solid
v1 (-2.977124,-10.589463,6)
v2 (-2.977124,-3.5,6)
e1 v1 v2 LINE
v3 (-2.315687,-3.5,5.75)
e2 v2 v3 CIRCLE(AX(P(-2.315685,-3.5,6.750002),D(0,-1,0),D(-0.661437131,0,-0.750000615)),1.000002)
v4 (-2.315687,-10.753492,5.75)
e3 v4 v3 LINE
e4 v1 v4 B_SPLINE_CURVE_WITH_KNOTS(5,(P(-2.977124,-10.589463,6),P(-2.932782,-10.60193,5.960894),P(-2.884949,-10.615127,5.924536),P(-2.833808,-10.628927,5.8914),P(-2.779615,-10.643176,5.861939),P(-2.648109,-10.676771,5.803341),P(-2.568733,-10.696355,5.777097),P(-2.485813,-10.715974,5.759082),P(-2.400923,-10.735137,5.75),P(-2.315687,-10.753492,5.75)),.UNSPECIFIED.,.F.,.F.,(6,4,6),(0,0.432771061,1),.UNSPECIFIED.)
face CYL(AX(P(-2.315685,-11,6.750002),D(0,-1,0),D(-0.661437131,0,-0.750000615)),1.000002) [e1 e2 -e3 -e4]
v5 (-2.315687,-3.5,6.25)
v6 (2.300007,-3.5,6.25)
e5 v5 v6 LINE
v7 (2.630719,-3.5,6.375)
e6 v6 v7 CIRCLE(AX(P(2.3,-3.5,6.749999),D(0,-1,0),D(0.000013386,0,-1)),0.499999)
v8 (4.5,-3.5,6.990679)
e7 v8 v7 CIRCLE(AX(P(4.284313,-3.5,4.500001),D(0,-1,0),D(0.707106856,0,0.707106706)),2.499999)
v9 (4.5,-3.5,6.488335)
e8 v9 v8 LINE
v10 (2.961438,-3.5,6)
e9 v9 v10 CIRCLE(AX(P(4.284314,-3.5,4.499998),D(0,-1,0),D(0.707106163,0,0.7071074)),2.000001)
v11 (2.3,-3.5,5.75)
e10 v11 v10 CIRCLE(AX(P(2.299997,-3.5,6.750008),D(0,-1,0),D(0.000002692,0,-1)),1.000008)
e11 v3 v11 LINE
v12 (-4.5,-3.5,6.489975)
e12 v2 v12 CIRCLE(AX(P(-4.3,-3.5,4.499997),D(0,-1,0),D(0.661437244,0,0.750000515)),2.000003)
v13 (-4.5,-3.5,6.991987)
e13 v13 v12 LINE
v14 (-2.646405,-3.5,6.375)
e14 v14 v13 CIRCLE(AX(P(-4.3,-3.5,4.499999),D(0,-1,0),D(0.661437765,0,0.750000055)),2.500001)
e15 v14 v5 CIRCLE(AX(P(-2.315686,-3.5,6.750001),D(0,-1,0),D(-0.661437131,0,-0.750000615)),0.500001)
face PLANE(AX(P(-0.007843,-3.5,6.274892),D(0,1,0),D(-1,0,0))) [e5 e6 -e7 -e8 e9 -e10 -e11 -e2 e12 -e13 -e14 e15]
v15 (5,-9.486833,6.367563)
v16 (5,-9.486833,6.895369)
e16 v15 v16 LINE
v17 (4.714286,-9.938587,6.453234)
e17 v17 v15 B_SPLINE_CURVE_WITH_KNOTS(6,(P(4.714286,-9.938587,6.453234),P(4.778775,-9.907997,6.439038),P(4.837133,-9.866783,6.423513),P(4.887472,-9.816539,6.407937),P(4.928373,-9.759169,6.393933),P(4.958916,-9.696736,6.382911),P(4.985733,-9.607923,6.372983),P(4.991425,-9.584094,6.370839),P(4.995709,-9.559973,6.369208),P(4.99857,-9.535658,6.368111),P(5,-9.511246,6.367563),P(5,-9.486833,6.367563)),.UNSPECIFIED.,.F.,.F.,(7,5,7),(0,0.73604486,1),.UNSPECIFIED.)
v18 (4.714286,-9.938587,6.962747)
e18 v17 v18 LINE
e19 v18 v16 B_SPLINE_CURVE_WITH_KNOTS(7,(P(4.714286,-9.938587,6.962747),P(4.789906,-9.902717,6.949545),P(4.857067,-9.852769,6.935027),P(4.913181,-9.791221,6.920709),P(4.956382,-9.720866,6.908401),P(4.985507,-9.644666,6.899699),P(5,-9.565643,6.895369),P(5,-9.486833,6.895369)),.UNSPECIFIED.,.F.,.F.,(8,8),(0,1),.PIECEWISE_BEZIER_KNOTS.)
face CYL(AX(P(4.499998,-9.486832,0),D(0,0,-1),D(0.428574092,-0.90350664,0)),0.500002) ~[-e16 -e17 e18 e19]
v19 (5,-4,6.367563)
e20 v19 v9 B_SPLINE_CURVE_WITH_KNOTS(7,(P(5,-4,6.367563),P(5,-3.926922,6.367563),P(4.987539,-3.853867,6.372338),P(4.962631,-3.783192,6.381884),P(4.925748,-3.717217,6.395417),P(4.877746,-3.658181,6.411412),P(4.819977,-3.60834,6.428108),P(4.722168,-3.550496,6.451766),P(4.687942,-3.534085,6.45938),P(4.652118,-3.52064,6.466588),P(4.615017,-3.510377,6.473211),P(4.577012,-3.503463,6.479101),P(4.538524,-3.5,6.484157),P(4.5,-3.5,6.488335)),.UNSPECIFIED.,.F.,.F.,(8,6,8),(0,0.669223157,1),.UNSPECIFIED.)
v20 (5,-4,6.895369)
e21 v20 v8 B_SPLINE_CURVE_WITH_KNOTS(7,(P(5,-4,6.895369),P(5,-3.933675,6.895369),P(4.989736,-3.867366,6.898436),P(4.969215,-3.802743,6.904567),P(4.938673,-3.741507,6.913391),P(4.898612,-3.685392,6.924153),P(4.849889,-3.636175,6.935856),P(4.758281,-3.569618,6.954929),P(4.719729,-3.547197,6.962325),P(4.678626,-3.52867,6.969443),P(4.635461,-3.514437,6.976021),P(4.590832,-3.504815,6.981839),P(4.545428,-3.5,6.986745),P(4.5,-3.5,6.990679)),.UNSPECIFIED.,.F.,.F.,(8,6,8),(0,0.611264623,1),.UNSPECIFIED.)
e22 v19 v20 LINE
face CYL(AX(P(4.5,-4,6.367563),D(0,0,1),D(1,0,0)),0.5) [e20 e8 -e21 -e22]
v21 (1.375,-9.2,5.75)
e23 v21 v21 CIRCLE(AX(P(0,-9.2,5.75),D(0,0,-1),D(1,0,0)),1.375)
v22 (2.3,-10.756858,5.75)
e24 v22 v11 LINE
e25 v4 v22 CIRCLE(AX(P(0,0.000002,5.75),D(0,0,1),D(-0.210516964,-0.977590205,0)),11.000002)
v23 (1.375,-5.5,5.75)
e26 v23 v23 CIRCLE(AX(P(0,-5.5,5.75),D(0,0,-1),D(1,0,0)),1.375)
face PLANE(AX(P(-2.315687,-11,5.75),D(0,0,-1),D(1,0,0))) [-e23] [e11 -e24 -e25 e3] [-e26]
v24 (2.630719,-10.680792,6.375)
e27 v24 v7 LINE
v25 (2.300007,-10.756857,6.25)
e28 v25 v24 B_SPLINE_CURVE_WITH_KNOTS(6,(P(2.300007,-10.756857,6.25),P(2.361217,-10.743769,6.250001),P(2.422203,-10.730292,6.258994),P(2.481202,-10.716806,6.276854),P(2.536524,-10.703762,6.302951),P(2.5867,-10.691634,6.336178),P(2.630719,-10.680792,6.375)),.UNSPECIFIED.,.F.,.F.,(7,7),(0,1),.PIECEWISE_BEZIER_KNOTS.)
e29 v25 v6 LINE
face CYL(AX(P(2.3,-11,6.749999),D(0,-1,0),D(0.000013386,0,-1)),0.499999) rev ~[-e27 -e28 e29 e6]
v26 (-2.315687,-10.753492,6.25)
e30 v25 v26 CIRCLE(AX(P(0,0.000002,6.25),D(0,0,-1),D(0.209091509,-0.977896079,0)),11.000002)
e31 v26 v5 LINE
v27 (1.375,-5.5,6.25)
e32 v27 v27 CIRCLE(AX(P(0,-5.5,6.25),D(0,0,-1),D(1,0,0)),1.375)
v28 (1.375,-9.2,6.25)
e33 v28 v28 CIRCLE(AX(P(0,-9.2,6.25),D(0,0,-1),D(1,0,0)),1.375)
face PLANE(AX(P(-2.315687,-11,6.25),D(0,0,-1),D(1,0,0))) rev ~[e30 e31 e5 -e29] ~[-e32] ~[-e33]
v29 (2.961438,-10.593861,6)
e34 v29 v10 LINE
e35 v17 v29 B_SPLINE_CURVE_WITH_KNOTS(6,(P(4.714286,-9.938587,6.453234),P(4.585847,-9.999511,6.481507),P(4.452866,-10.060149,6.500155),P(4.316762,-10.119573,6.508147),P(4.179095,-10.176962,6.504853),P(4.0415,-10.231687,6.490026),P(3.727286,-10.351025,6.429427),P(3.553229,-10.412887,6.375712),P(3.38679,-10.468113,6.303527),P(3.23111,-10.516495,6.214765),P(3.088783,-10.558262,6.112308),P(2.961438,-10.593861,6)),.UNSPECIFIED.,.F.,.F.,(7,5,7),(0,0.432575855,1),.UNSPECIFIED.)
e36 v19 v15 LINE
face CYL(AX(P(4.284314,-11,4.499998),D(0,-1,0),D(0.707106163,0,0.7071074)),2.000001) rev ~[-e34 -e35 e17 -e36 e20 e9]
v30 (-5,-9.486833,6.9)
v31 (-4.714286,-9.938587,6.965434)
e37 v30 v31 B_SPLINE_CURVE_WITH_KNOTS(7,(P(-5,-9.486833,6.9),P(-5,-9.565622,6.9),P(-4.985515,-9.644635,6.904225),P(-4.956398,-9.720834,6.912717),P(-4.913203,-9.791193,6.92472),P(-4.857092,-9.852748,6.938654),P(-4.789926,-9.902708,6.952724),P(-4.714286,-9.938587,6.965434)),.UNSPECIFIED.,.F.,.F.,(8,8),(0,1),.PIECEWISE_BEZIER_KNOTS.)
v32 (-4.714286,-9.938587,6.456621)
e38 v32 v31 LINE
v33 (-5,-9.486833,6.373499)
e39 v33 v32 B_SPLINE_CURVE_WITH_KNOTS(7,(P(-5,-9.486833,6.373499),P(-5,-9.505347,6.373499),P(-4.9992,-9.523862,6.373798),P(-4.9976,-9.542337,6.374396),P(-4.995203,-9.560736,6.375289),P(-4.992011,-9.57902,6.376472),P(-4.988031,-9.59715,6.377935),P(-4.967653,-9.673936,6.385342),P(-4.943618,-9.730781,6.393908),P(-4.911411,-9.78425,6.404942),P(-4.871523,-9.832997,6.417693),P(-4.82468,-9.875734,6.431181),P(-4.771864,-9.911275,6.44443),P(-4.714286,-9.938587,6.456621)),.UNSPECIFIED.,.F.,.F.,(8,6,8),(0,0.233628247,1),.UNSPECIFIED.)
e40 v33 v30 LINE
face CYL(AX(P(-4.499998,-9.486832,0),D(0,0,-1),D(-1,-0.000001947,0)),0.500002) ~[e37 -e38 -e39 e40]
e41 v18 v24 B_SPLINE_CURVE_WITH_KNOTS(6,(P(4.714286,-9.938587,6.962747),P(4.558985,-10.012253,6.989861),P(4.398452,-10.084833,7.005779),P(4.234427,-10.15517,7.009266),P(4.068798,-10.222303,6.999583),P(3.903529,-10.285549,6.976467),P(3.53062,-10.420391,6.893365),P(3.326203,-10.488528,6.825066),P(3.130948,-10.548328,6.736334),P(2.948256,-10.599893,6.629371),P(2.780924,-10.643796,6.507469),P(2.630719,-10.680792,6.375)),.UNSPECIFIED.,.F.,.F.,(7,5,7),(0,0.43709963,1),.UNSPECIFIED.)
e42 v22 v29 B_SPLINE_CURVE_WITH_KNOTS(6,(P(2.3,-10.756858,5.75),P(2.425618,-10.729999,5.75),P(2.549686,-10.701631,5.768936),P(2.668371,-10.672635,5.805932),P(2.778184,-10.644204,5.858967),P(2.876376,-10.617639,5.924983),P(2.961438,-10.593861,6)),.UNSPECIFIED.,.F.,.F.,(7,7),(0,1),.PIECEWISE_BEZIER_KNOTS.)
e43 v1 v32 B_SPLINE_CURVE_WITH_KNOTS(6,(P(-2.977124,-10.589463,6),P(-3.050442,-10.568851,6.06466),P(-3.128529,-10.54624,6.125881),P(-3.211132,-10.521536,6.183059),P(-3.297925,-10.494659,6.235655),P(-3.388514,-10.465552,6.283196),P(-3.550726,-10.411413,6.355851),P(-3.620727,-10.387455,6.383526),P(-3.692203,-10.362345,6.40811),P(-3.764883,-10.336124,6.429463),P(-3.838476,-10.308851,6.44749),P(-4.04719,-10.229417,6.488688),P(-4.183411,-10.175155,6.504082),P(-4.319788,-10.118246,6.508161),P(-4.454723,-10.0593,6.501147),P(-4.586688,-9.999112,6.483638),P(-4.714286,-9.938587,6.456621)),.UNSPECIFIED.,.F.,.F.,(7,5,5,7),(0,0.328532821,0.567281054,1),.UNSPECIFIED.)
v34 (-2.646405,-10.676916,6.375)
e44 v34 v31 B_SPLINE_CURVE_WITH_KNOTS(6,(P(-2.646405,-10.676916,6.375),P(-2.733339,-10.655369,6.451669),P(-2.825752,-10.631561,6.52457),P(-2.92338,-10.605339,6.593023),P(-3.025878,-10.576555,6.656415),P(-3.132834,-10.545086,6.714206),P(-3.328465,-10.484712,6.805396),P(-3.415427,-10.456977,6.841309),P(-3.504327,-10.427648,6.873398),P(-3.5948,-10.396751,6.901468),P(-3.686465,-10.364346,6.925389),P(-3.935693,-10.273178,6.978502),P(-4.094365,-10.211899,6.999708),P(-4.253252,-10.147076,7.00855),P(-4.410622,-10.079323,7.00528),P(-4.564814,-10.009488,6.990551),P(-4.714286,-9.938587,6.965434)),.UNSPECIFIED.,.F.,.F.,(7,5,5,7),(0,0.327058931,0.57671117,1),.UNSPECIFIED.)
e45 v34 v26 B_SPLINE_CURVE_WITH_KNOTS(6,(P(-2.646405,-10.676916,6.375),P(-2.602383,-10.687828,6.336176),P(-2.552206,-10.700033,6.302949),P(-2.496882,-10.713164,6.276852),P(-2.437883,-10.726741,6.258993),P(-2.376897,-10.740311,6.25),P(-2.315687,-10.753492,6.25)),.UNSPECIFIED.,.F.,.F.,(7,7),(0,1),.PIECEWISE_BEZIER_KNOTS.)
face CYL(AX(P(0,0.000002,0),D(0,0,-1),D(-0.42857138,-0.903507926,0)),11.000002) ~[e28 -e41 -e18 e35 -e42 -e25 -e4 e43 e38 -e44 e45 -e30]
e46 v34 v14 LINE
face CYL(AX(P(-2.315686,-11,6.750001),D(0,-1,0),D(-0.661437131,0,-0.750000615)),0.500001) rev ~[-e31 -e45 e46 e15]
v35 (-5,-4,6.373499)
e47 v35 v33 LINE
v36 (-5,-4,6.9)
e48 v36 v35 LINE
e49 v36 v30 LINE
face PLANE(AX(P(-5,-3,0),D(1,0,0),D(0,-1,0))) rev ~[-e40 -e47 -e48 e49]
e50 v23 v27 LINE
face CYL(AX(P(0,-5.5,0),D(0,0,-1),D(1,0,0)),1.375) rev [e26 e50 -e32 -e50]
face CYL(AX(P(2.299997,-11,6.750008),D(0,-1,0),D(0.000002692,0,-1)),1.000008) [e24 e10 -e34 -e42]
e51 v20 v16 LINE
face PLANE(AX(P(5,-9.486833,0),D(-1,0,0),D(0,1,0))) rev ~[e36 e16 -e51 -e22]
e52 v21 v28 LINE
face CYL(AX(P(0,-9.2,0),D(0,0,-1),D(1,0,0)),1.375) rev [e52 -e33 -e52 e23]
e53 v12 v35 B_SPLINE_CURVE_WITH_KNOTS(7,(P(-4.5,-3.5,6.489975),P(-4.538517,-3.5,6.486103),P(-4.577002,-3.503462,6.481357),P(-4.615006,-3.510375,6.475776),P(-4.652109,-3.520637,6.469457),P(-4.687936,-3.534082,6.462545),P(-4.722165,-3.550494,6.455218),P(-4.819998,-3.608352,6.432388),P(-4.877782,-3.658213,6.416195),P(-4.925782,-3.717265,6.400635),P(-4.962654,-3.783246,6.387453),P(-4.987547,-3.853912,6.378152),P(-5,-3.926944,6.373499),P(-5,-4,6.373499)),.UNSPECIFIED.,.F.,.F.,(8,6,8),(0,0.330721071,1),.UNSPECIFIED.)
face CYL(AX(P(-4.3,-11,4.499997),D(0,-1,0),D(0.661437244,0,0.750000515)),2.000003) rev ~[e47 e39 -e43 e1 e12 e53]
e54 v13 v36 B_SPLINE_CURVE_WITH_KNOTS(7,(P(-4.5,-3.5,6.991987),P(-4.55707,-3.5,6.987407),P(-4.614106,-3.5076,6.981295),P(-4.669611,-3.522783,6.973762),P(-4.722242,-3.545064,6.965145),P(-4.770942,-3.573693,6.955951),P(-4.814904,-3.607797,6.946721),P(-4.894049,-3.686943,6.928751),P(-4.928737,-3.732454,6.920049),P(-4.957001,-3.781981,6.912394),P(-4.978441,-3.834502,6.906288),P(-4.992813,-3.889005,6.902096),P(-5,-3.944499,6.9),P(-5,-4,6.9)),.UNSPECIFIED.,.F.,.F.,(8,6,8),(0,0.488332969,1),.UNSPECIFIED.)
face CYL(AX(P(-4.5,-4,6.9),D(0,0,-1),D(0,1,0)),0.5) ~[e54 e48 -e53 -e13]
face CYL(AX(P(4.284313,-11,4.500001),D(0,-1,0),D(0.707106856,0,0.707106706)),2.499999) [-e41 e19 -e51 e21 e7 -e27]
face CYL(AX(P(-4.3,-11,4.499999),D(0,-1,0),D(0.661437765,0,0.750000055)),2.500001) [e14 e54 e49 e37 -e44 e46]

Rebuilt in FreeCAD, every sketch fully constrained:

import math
import FreeCAD as App
import Part
import Sketcher

V = App.Vector


def edges_at(feature, points):
    """Names of the edges that pass closest to the given points."""
    edges = feature.Shape.Edges
    near = lambda p: min(range(len(edges)), key=lambda i: edges[i].distToShape(Part.Vertex(*p))[0])
    return sorted({f"Edge{near(p) + 1}" for p in points})

doc = App.newDocument("Part")
body = doc.addObject("PartDesign::Body", "Body")

sketch1 = doc.addObject("Sketcher::SketchObject", "Sketch")
body.addObject(sketch1)
sketch1.AttachmentSupport = (doc.XZ_Plane, [""])
sketch1.MapMode = "FlatFace"
sketch1.AttachmentOffset = App.Placement(V(0, 0, 11), App.Rotation())
sketch1.addGeometry([
    Part.ArcOfCircle(Part.Circle(V(-4.3, 4.5, 0), V(0, 0, 1), 2), math.radians(49), math.radians(135)),
    Part.ArcOfCircle(Part.Circle(V(-2.32, 6.75, 0), V(0, 0, 1), 1), math.radians(-131), math.radians(-90)),
    Part.LineSegment(V(-2.32, 5.75, 0), V(2.3, 5.75, 0)),
    Part.ArcOfCircle(Part.Circle(V(2.3, 6.75, 0), V(0, 0, 1), 1), math.radians(-90), math.radians(-49)),
    Part.ArcOfCircle(Part.Circle(V(4.28, 4.5, 0), V(0, 0, 1), 2), math.radians(45), math.radians(131)),
    Part.LineSegment(V(5.7, 5.91, 0), V(6.05, 6.27, 0)),
    Part.ArcOfCircle(Part.Circle(V(4.28, 4.5, 0), V(0, 0, 1), 2.5), math.radians(45), math.radians(131)),
    Part.ArcOfCircle(Part.Circle(V(2.3, 6.75, 0), V(0, 0, 1), 0.5), math.radians(-90), math.radians(-49)),
    Part.LineSegment(V(2.3, 6.25, 0), V(-2.32, 6.25, 0)),
    Part.ArcOfCircle(Part.Circle(V(-2.32, 6.75, 0), V(0, 0, 1), 0.5), math.radians(-131), math.radians(-90)),
    Part.ArcOfCircle(Part.Circle(V(-4.3, 4.5, 0), V(0, 0, 1), 2.5), math.radians(49), math.radians(135)),
    Part.LineSegment(V(-6.07, 6.27, 0), V(-5.71, 5.91, 0)),
], False)
sketch1.addConstraint([
    Sketcher.Constraint("Tangent", 0, 1, 1, 1),
    Sketcher.Constraint("Tangent", 1, 2, 2, 1),
    Sketcher.Constraint("Coincident", 2, 2, 3, 1),
    Sketcher.Constraint("Coincident", 3, 2, 4, 2),
    Sketcher.Constraint("Coincident", 4, 1, 5, 1),
    Sketcher.Constraint("Coincident", 5, 2, 6, 1),
    Sketcher.Constraint("Tangent", 6, 2, 7, 2),
    Sketcher.Constraint("Coincident", 7, 1, 8, 1),
    Sketcher.Constraint("Coincident", 8, 2, 9, 2),
    Sketcher.Constraint("Tangent", 9, 1, 10, 1),
    Sketcher.Constraint("Coincident", 10, 2, 11, 1),
    Sketcher.Constraint("Coincident", 11, 2, 0, 2),
    Sketcher.Constraint("Horizontal", 2),
    Sketcher.Constraint("Horizontal", 8),
    Sketcher.Constraint("Coincident", 6, 3, 4, 3),
    Sketcher.Constraint("Coincident", 7, 3, 3, 3),
    Sketcher.Constraint("Coincident", 9, 3, 1, 3),
    Sketcher.Constraint("Coincident", 10, 3, 0, 3),
    Sketcher.Constraint("Equal", 0, 4),
    Sketcher.Constraint("Equal", 7, 9),
    Sketcher.Constraint("Perpendicular", 5, 11),
    Sketcher.Constraint("Horizontal", 0, 3, 4, 3),
    Sketcher.Constraint("Horizontal", 0, 1, 3, 2),
    Sketcher.Constraint("Horizontal", 5, 2, 10, 2),
    Sketcher.Constraint("Horizontal", 4, 1, 11, 2),
    Sketcher.Constraint("Vertical", 7, 3, 2, 2),
    Sketcher.Constraint("Vertical", 1, 2, 8, 2),
    Sketcher.Constraint("Radius", 4, 2.000001),
    Sketcher.Constraint("Radius", 6, 2.499999),
    Sketcher.Constraint("Radius", 7, 0.499999),
    Sketcher.Constraint("DistanceY", -1, 1, 0, 1, 6.0),
    Sketcher.Constraint("DistanceX", 0, 3, -1, 1, 4.3),
    Sketcher.Constraint("DistanceY", -1, 1, 4, 3, 4.499998),
    Sketcher.Constraint("DistanceX", -1, 1, 7, 3, 2.3),
    Sketcher.Constraint("DistanceX", 8, 2, 8, 1, 4.615694),
    Sketcher.Constraint("DistanceX", -1, 1, 5, 2, 6.05208),
])
pad1 = doc.addObject("PartDesign::Pad", "Pad")
body.addObject(pad1)
pad1.Profile = sketch1
pad1.Length = 7.5
pad1.Reversed = True

sketch2 = doc.addObject("Sketcher::SketchObject", "Sketch001")
body.addObject(sketch2)
sketch2.AttachmentSupport = (doc.XY_Plane, [""])
sketch2.MapMode = "FlatFace"
sketch2.addGeometry([
    Part.LineSegment(V(-7.1, -1.1, 0), V(-7.1, -12.2, 0)),
    Part.LineSegment(V(-7.1, -12.2, 0), V(6.6, -12.2, 0)),
    Part.LineSegment(V(6.6, -12.2, 0), V(6.6, -1.1, 0)),
    Part.LineSegment(V(6.6, -1.1, 0), V(-7.1, -1.1, 0)),
    Part.ArcOfCircle(Part.Circle(V(0, 0, 0), V(0, 0, 1), 11), math.radians(-115), math.radians(-65)),
    Part.ArcOfCircle(Part.Circle(V(-4.5, -9.5, 0), V(0, 0, 1), 0.5), math.radians(-180), math.radians(-115)),
    Part.LineSegment(V(-5, -9.5, 0), V(-5, -3, 0)),
    Part.ArcOfCircle(Part.Circle(V(-4.5, -3, 0), V(0, 0, 1), 0.5), math.radians(90), math.radians(180)),
    Part.LineSegment(V(-4.5, -2.5, 0), V(4.5, -2.5, 0)),
    Part.ArcOfCircle(Part.Circle(V(4.5, -3, 0), V(0, 0, 1), 0.5), math.radians(0), math.radians(90)),
    Part.LineSegment(V(5, -3, 0), V(5, -9.5, 0)),
    Part.ArcOfCircle(Part.Circle(V(4.5, -9.5, 0), V(0, 0, 1), 0.5), math.radians(-65), math.radians(0)),
    Part.Circle(V(0, -5.5, 0), V(0, 0, 1), 1.4),
    Part.Circle(V(0, -9.2, 0), V(0, 0, 1), 1.4),
], False)
sketch2.addConstraint([
    Sketcher.Constraint("Coincident", 0, 2, 1, 1),
    Sketcher.Constraint("Coincident", 1, 2, 2, 1),
    Sketcher.Constraint("Coincident", 2, 2, 3, 1),
    Sketcher.Constraint("Coincident", 3, 2, 0, 1),
    Sketcher.Constraint("Coincident", 4, 1, 5, 2),
    Sketcher.Constraint("Tangent", 5, 1, 6, 1),
    Sketcher.Constraint("Coincident", 6, 2, 7, 2),
    Sketcher.Constraint("Coincident", 7, 1, 8, 1),
    Sketcher.Constraint("Coincident", 8, 2, 9, 2),
    Sketcher.Constraint("Coincident", 9, 1, 10, 1),
    Sketcher.Constraint("Tangent", 10, 2, 11, 2),
    Sketcher.Constraint("Coincident", 11, 1, 4, 2),
    Sketcher.Constraint("Vertical", 0),
    Sketcher.Constraint("Horizontal", 1),
    Sketcher.Constraint("Vertical", 2),
    Sketcher.Constraint("Horizontal", 3),
    Sketcher.Constraint("Vertical", 6),
    Sketcher.Constraint("Horizontal", 8),
    Sketcher.Constraint("Vertical", 10),
    Sketcher.Constraint("Coincident", 4, 3, -1, 1),
    Sketcher.Constraint("Equal", 5, 7),
    Sketcher.Constraint("Equal", 7, 9),
    Sketcher.Constraint("Equal", 9, 11),
    Sketcher.Constraint("Equal", 12, 13),
    Sketcher.Constraint("Symmetric", 6, 2, 9, 1, -2),
    Sketcher.Constraint("PointOnObject", 12, 3, -2),
    Sketcher.Constraint("PointOnObject", 13, 3, -2),
    Sketcher.Constraint("Horizontal", 9, 3, 6, 2),
    Sketcher.Constraint("Horizontal", 4, 1, 11, 1),
    Sketcher.Constraint("Vertical", 5, 3, 7, 1),
    Sketcher.Constraint("Vertical", 11, 3, 8, 2),
    Sketcher.Constraint("Radius", 4, 11.000002),
    Sketcher.Constraint("Radius", 5, 0.500002),
    Sketcher.Constraint("Diameter", 12, 2.75),
    Sketcher.Constraint("DistanceX", 8, 1, 8, 2, 9.0),
    Sketcher.Constraint("DistanceY", 7, 3, -1, 1, 3.000001),
    Sketcher.Constraint("DistanceY", 12, 3, 7, 1, 3.0),
    Sketcher.Constraint("DistanceY", 13, 3, -1, 1, 9.2),
    Sketcher.Constraint("DistanceY", 0, 2, 0, 1, 11.046402),
    Sketcher.Constraint("DistanceX", 1, 1, 1, 2, 13.73571),
    Sketcher.Constraint("DistanceX", 0, 2, -1, 1, 7.087418),
    Sketcher.Constraint("DistanceY", 0, 2, -1, 1, 12.18503),
    Sketcher.Constraint("DistanceX", 4, 1, -1, 1, 4.714286),
])
pocket1 = doc.addObject("PartDesign::Pocket", "Pocket")
body.addObject(pocket1)
pocket1.Profile = sketch2
pocket1.Length = 8
pocket1.Reversed = True
doc.recompute()

fillet = doc.addObject("PartDesign::Fillet", "Fillet")
body.addObject(fillet)
fillet.Base = (pocket1, edges_at(pocket1, [(-5, -3.5, 6.637), (5, -3.5, 6.631)]))
fillet.Radius = 0.5

doc.recompute()
